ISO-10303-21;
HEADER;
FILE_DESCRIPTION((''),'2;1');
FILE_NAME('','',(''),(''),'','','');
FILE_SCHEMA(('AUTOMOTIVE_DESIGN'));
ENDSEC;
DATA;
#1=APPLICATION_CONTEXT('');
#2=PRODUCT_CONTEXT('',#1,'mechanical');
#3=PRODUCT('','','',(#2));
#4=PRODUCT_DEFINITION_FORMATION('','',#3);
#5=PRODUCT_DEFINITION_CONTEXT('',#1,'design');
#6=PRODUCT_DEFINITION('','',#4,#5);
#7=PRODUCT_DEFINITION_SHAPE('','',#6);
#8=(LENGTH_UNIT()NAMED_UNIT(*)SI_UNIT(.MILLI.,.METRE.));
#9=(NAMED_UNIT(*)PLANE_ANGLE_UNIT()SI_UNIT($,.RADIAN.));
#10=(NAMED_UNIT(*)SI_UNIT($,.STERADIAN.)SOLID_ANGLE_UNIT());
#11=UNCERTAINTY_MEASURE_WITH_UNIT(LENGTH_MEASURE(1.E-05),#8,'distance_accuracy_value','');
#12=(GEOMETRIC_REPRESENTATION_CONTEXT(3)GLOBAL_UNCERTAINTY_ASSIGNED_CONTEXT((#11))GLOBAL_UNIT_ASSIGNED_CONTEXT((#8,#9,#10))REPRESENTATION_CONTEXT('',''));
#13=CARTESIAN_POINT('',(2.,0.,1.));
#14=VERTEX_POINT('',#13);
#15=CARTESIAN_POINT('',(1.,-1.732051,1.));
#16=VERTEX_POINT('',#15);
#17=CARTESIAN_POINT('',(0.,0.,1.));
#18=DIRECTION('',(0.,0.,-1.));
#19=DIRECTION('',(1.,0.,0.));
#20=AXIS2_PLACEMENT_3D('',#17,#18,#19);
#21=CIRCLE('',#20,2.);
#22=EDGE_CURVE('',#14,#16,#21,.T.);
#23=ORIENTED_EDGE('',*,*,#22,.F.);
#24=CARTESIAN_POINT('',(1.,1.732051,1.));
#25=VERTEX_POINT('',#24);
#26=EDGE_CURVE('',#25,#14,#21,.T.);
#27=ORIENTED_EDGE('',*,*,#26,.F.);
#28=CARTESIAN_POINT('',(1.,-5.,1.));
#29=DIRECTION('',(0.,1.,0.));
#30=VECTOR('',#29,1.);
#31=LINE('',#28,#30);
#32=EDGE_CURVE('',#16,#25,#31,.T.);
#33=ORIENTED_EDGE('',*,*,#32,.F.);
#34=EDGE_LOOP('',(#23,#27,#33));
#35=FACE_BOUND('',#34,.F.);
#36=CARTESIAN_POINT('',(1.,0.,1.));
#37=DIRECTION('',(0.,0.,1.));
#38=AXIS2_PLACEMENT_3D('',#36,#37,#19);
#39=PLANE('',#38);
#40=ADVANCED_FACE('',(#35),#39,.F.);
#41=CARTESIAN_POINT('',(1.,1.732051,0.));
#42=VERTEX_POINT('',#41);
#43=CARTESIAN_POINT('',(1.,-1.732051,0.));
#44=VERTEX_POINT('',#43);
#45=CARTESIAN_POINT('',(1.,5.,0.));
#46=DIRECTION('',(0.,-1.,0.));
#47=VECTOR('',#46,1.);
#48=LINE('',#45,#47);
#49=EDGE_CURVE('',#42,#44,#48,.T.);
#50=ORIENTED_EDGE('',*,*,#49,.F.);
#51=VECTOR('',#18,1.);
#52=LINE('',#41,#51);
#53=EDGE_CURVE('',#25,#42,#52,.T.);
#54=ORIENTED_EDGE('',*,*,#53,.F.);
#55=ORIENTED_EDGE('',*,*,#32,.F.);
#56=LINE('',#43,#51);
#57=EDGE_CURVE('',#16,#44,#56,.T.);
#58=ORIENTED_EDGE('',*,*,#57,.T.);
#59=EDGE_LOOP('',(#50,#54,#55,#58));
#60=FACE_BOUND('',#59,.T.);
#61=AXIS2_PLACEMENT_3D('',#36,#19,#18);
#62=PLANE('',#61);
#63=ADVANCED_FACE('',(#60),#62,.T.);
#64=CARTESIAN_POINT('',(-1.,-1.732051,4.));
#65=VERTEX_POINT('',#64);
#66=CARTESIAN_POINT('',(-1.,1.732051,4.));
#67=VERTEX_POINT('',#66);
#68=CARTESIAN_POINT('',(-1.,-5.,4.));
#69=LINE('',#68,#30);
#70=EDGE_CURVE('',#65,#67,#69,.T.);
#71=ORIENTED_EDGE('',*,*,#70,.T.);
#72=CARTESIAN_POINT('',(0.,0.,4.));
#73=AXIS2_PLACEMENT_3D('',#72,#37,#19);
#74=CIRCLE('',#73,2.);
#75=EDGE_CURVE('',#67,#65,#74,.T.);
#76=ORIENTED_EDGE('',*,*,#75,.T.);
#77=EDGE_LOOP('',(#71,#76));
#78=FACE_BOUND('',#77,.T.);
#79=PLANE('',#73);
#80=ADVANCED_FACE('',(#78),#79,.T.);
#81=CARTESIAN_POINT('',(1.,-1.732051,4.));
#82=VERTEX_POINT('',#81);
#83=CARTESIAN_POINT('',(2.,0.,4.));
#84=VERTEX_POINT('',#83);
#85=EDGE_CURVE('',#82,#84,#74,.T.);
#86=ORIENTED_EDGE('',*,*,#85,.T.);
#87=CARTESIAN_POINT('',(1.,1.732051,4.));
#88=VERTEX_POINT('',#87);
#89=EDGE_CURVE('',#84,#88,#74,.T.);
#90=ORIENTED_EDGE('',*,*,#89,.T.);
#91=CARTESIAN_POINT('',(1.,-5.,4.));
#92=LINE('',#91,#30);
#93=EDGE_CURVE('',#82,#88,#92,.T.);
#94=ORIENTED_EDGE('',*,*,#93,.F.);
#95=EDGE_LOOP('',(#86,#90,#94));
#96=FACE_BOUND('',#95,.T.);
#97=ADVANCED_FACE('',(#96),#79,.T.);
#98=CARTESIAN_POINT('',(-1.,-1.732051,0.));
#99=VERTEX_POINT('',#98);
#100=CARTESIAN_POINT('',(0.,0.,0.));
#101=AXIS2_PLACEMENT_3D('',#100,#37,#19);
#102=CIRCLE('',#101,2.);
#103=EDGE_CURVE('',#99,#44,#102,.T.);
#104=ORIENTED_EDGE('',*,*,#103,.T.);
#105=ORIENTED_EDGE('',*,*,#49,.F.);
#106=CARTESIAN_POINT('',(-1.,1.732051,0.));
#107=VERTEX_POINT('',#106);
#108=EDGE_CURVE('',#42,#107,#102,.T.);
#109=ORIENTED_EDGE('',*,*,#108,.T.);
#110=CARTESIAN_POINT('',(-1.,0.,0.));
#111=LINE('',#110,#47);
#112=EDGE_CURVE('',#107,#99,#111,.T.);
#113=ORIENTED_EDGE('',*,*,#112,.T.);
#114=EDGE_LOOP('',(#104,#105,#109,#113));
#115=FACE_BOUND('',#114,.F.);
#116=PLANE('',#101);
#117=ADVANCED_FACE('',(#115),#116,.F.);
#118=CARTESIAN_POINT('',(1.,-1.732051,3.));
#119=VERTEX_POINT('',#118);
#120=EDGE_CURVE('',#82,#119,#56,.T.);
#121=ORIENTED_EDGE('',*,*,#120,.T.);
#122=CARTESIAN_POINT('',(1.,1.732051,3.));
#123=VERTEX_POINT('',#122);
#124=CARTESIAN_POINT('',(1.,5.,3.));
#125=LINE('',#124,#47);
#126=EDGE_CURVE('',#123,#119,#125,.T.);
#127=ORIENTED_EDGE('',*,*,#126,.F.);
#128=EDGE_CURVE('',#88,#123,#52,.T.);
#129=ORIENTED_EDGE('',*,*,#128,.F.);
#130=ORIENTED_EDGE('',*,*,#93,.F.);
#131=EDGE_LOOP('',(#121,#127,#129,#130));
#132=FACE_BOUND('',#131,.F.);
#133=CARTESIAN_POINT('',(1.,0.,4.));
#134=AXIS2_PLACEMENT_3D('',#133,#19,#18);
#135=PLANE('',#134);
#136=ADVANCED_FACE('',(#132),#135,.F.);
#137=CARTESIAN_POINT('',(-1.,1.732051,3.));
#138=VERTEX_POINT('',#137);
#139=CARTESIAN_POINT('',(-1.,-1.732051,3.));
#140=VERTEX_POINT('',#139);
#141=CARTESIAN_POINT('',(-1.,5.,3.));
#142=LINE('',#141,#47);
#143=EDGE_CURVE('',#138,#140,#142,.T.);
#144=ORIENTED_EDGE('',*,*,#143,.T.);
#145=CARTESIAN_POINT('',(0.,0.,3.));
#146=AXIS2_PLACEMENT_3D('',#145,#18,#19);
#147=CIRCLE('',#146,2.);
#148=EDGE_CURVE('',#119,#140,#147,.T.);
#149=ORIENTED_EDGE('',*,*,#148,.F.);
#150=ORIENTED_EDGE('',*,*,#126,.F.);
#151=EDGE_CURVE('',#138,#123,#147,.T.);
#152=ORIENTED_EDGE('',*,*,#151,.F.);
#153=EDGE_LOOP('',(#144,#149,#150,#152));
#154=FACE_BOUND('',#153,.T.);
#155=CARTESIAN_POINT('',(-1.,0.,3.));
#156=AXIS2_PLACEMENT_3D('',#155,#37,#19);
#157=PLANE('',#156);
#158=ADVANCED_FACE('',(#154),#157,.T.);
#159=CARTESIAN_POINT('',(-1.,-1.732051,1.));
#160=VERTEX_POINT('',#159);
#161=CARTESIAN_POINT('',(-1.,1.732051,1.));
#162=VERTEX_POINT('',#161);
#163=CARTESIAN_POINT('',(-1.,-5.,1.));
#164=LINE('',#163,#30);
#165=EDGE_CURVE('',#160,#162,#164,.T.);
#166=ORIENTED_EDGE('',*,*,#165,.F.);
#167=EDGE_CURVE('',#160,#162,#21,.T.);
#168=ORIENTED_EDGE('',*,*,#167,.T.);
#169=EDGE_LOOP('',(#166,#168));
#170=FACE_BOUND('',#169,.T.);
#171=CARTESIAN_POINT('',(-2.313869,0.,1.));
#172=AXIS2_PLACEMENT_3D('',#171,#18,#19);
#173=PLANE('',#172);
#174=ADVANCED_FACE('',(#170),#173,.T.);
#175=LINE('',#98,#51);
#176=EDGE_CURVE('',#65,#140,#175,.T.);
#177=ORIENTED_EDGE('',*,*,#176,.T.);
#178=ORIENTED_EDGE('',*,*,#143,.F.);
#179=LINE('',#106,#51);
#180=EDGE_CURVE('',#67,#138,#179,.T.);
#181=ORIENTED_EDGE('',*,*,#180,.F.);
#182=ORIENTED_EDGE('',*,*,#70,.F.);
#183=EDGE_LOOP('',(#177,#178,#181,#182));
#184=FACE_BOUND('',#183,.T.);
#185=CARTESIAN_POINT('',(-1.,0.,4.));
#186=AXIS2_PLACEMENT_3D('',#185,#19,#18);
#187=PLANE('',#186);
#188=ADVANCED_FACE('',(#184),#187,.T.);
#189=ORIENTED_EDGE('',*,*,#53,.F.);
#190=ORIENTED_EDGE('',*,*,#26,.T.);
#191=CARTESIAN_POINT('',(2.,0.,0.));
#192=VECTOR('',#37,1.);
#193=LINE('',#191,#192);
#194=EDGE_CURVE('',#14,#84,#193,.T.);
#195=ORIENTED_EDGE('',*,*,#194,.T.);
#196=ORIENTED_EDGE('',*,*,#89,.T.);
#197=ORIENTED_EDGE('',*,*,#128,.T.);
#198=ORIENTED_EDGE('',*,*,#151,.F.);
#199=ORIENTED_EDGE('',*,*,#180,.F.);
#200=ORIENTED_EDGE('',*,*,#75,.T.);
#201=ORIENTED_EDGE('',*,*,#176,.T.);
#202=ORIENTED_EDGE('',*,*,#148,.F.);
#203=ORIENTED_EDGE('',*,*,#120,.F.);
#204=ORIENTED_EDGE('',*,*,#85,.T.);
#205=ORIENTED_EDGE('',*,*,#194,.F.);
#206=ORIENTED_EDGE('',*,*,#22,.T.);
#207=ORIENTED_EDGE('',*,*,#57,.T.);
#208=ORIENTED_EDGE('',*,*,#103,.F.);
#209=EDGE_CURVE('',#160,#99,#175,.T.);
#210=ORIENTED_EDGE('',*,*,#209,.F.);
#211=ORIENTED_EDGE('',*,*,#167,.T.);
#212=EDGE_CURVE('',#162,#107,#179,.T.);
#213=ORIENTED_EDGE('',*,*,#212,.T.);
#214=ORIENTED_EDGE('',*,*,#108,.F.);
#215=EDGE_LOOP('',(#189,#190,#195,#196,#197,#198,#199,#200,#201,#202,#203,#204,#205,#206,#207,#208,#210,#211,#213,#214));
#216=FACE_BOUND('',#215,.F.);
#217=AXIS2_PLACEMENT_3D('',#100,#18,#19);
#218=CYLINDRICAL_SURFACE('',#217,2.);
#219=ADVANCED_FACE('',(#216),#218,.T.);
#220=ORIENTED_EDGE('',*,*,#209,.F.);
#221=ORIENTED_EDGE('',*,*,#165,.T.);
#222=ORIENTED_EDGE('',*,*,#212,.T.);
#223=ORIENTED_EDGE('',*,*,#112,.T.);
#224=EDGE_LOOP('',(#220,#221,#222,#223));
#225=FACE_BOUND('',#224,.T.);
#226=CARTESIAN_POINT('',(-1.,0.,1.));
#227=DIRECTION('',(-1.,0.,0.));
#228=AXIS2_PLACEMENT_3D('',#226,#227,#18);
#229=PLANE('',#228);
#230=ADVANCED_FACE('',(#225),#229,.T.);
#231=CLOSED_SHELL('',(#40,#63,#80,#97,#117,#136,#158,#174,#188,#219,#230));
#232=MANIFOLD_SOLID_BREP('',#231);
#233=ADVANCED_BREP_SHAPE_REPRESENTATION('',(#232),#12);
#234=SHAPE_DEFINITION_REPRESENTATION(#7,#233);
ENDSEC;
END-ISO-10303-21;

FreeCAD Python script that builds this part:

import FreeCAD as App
import Part
import Sketcher
from FreeCAD import Vector
Q = App.Units.Quantity

doc = App.newDocument("Part")
params = doc.addObject("Spreadsheet::Sheet", "Params")
for row, (alias, value) in enumerate([
    ("sketch1_diameter", "4 mm"),
    ("pad1_length", "4 mm"),
    ("sketch2_width", "2 mm"),
    ("sketch2_height", "1 mm"),
    ("pocket1_length", "10 mm"),
    ("sketch3_width", "1 mm"),
    ("pocket2_length", "10 mm"),
], start=1):
    params.set(f"A{row}", alias)
    params.set(f"B{row}", "=" + value)
    params.setAlias(f"B{row}", alias)

body = doc.addObject("PartDesign::Body", "Body")

# Sketch on XY plane
sketch1 = body.newObject("Sketcher::SketchObject", "Sketch")
sketch1.AttachmentSupport = (doc.getObject("XY_Plane"), [""])
sketch1.MapMode = "FlatFace"
sketch1.addGeometry(Part.Circle(Vector(0, 0, 0), Vector(0, 0, 1), 2), False)
sketch1.addConstraint([
    Sketcher.Constraint("Coincident", 0, 3, -1, 1),
    Sketcher.Constraint("Diameter", 0, Q("4 mm")),
])
sketch1.setExpression("Constraints[1]", "Params.sketch1_diameter")
pad1 = body.newObject("PartDesign::Pad", "Pad")
pad1.Profile = sketch1
pad1.setExpression("Length", "Params.pad1_length")

# Sketch on XZ plane
sketch2 = body.newObject("Sketcher::SketchObject", "Sketch001")
sketch2.AttachmentSupport = (doc.getObject("XZ_Plane"), [""])
sketch2.MapMode = "FlatFace"
sketch2.addGeometry([
    Part.LineSegment(Vector(-2.3, 1, 0), Vector(-1, 1, 0)),  # 0
    Part.LineSegment(Vector(-1, 1, 0), Vector(-1, -0.2, 0)),  # 1
    Part.LineSegment(Vector(-1, -0.2, 0), Vector(-2.6, -0.2, 0)),  # 2
    Part.LineSegment(Vector(-2.6, -0.2, 0), Vector(-2.3, 1, 0)),  # 3
    Part.LineSegment(Vector(-1, 3, 0), Vector(-1, 4, 0)),  # 4
    Part.LineSegment(Vector(-1, 4, 0), Vector(1, 4, 0)),  # 5
    Part.LineSegment(Vector(1, 4, 0), Vector(1, 3, 0)),  # 6
    Part.LineSegment(Vector(1, 3, 0), Vector(-1, 3, 0)),  # 7
], False)
sketch2.addConstraint([
    Sketcher.Constraint("Coincident", 0, 2, 1, 1),
    Sketcher.Constraint("Coincident", 1, 2, 2, 1),
    Sketcher.Constraint("Coincident", 2, 2, 3, 1),
    Sketcher.Constraint("Coincident", 3, 2, 0, 1),
    Sketcher.Constraint("Coincident", 4, 2, 5, 1),
    Sketcher.Constraint("Coincident", 5, 2, 6, 1),
    Sketcher.Constraint("Coincident", 6, 2, 7, 1),
    Sketcher.Constraint("Coincident", 7, 2, 4, 1),
    Sketcher.Constraint("Horizontal", 0),
    Sketcher.Constraint("Vertical", 1),
    Sketcher.Constraint("Vertical", 4),
    Sketcher.Constraint("Horizontal", 5),
    Sketcher.Constraint("Vertical", 6),
    Sketcher.Constraint("Horizontal", 7),
    Sketcher.Constraint("Vertical", 1, 2, 4, 2),
    Sketcher.Constraint("DistanceX", 5, 1, 5, 2, Q("2 mm")),
    Sketcher.Constraint("DistanceY", 4, 1, 4, 2, Q("1 mm")),
    Sketcher.Constraint("DistanceX", 0, 2, -1, 1, Q("1 mm")),
    Sketcher.Constraint("DistanceY", -1, 1, 0, 2, Q("1 mm")),
    Sketcher.Constraint("DistanceY", -1, 1, 4, 2, Q("4 mm")),
    Sketcher.Constraint("DistanceX", 0, 1, 0, 2, Q("1.313869 mm")),
    Sketcher.Constraint("DistanceY", 1, 2, 1, 1, Q("1.234035 mm")),
    Sketcher.Constraint("DistanceX", 2, 2, -1, 1, Q("2.58676 mm")),
    Sketcher.Constraint("DistanceY", 2, 2, -1, 1, Q("0.199881 mm")),
])
sketch2.setExpression("Constraints[15]", "Params.sketch2_width")
sketch2.setExpression("Constraints[16]", "Params.sketch2_height")
pocket1 = body.newObject("PartDesign::Pocket", "Pocket")
pocket1.Profile = sketch2
pocket1.setExpression("Length", "Params.pocket1_length")
pocket1.Midplane = True

# Sketch on XZ plane
sketch3 = body.newObject("Sketcher::SketchObject", "Sketch002")
sketch3.AttachmentSupport = (doc.getObject("XZ_Plane"), [""])
sketch3.MapMode = "FlatFace"
sketch3.addGeometry([
    Part.LineSegment(Vector(1, 0, 0), Vector(1, 1, 0)),
    Part.LineSegment(Vector(1, 1, 0), Vector(2, 1, 0)),
    Part.LineSegment(Vector(2, 1, 0), Vector(2, 0, 0)),
    Part.LineSegment(Vector(2, 0, 0), Vector(1, 0, 0)),
], False)
sketch3.addConstraint([
    Sketcher.Constraint("Coincident", 0, 2, 1, 1),
    Sketcher.Constraint("Coincident", 1, 2, 2, 1),
    Sketcher.Constraint("Coincident", 2, 2, 3, 1),
    Sketcher.Constraint("Coincident", 3, 2, 0, 1),
    Sketcher.Constraint("Vertical", 0),
    Sketcher.Constraint("Horizontal", 1),
    Sketcher.Constraint("Vertical", 2),
    Sketcher.Constraint("Horizontal", 3),
    Sketcher.Constraint("PointOnObject", 2, 2, -1),
    Sketcher.Constraint("Equal", 3, 0),
    Sketcher.Constraint("DistanceX", 1, 1, 1, 2, Q("1 mm")),
    Sketcher.Constraint("DistanceX", -1, 1, 0, 2, Q("1 mm")),
])
sketch3.setExpression("Constraints[10]", "Params.sketch3_width")
pocket2 = body.newObject("PartDesign::Pocket", "Pocket001")
pocket2.Profile = sketch3
pocket2.setExpression("Length", "Params.pocket2_length")
pocket2.Midplane = True

doc.recompute()
